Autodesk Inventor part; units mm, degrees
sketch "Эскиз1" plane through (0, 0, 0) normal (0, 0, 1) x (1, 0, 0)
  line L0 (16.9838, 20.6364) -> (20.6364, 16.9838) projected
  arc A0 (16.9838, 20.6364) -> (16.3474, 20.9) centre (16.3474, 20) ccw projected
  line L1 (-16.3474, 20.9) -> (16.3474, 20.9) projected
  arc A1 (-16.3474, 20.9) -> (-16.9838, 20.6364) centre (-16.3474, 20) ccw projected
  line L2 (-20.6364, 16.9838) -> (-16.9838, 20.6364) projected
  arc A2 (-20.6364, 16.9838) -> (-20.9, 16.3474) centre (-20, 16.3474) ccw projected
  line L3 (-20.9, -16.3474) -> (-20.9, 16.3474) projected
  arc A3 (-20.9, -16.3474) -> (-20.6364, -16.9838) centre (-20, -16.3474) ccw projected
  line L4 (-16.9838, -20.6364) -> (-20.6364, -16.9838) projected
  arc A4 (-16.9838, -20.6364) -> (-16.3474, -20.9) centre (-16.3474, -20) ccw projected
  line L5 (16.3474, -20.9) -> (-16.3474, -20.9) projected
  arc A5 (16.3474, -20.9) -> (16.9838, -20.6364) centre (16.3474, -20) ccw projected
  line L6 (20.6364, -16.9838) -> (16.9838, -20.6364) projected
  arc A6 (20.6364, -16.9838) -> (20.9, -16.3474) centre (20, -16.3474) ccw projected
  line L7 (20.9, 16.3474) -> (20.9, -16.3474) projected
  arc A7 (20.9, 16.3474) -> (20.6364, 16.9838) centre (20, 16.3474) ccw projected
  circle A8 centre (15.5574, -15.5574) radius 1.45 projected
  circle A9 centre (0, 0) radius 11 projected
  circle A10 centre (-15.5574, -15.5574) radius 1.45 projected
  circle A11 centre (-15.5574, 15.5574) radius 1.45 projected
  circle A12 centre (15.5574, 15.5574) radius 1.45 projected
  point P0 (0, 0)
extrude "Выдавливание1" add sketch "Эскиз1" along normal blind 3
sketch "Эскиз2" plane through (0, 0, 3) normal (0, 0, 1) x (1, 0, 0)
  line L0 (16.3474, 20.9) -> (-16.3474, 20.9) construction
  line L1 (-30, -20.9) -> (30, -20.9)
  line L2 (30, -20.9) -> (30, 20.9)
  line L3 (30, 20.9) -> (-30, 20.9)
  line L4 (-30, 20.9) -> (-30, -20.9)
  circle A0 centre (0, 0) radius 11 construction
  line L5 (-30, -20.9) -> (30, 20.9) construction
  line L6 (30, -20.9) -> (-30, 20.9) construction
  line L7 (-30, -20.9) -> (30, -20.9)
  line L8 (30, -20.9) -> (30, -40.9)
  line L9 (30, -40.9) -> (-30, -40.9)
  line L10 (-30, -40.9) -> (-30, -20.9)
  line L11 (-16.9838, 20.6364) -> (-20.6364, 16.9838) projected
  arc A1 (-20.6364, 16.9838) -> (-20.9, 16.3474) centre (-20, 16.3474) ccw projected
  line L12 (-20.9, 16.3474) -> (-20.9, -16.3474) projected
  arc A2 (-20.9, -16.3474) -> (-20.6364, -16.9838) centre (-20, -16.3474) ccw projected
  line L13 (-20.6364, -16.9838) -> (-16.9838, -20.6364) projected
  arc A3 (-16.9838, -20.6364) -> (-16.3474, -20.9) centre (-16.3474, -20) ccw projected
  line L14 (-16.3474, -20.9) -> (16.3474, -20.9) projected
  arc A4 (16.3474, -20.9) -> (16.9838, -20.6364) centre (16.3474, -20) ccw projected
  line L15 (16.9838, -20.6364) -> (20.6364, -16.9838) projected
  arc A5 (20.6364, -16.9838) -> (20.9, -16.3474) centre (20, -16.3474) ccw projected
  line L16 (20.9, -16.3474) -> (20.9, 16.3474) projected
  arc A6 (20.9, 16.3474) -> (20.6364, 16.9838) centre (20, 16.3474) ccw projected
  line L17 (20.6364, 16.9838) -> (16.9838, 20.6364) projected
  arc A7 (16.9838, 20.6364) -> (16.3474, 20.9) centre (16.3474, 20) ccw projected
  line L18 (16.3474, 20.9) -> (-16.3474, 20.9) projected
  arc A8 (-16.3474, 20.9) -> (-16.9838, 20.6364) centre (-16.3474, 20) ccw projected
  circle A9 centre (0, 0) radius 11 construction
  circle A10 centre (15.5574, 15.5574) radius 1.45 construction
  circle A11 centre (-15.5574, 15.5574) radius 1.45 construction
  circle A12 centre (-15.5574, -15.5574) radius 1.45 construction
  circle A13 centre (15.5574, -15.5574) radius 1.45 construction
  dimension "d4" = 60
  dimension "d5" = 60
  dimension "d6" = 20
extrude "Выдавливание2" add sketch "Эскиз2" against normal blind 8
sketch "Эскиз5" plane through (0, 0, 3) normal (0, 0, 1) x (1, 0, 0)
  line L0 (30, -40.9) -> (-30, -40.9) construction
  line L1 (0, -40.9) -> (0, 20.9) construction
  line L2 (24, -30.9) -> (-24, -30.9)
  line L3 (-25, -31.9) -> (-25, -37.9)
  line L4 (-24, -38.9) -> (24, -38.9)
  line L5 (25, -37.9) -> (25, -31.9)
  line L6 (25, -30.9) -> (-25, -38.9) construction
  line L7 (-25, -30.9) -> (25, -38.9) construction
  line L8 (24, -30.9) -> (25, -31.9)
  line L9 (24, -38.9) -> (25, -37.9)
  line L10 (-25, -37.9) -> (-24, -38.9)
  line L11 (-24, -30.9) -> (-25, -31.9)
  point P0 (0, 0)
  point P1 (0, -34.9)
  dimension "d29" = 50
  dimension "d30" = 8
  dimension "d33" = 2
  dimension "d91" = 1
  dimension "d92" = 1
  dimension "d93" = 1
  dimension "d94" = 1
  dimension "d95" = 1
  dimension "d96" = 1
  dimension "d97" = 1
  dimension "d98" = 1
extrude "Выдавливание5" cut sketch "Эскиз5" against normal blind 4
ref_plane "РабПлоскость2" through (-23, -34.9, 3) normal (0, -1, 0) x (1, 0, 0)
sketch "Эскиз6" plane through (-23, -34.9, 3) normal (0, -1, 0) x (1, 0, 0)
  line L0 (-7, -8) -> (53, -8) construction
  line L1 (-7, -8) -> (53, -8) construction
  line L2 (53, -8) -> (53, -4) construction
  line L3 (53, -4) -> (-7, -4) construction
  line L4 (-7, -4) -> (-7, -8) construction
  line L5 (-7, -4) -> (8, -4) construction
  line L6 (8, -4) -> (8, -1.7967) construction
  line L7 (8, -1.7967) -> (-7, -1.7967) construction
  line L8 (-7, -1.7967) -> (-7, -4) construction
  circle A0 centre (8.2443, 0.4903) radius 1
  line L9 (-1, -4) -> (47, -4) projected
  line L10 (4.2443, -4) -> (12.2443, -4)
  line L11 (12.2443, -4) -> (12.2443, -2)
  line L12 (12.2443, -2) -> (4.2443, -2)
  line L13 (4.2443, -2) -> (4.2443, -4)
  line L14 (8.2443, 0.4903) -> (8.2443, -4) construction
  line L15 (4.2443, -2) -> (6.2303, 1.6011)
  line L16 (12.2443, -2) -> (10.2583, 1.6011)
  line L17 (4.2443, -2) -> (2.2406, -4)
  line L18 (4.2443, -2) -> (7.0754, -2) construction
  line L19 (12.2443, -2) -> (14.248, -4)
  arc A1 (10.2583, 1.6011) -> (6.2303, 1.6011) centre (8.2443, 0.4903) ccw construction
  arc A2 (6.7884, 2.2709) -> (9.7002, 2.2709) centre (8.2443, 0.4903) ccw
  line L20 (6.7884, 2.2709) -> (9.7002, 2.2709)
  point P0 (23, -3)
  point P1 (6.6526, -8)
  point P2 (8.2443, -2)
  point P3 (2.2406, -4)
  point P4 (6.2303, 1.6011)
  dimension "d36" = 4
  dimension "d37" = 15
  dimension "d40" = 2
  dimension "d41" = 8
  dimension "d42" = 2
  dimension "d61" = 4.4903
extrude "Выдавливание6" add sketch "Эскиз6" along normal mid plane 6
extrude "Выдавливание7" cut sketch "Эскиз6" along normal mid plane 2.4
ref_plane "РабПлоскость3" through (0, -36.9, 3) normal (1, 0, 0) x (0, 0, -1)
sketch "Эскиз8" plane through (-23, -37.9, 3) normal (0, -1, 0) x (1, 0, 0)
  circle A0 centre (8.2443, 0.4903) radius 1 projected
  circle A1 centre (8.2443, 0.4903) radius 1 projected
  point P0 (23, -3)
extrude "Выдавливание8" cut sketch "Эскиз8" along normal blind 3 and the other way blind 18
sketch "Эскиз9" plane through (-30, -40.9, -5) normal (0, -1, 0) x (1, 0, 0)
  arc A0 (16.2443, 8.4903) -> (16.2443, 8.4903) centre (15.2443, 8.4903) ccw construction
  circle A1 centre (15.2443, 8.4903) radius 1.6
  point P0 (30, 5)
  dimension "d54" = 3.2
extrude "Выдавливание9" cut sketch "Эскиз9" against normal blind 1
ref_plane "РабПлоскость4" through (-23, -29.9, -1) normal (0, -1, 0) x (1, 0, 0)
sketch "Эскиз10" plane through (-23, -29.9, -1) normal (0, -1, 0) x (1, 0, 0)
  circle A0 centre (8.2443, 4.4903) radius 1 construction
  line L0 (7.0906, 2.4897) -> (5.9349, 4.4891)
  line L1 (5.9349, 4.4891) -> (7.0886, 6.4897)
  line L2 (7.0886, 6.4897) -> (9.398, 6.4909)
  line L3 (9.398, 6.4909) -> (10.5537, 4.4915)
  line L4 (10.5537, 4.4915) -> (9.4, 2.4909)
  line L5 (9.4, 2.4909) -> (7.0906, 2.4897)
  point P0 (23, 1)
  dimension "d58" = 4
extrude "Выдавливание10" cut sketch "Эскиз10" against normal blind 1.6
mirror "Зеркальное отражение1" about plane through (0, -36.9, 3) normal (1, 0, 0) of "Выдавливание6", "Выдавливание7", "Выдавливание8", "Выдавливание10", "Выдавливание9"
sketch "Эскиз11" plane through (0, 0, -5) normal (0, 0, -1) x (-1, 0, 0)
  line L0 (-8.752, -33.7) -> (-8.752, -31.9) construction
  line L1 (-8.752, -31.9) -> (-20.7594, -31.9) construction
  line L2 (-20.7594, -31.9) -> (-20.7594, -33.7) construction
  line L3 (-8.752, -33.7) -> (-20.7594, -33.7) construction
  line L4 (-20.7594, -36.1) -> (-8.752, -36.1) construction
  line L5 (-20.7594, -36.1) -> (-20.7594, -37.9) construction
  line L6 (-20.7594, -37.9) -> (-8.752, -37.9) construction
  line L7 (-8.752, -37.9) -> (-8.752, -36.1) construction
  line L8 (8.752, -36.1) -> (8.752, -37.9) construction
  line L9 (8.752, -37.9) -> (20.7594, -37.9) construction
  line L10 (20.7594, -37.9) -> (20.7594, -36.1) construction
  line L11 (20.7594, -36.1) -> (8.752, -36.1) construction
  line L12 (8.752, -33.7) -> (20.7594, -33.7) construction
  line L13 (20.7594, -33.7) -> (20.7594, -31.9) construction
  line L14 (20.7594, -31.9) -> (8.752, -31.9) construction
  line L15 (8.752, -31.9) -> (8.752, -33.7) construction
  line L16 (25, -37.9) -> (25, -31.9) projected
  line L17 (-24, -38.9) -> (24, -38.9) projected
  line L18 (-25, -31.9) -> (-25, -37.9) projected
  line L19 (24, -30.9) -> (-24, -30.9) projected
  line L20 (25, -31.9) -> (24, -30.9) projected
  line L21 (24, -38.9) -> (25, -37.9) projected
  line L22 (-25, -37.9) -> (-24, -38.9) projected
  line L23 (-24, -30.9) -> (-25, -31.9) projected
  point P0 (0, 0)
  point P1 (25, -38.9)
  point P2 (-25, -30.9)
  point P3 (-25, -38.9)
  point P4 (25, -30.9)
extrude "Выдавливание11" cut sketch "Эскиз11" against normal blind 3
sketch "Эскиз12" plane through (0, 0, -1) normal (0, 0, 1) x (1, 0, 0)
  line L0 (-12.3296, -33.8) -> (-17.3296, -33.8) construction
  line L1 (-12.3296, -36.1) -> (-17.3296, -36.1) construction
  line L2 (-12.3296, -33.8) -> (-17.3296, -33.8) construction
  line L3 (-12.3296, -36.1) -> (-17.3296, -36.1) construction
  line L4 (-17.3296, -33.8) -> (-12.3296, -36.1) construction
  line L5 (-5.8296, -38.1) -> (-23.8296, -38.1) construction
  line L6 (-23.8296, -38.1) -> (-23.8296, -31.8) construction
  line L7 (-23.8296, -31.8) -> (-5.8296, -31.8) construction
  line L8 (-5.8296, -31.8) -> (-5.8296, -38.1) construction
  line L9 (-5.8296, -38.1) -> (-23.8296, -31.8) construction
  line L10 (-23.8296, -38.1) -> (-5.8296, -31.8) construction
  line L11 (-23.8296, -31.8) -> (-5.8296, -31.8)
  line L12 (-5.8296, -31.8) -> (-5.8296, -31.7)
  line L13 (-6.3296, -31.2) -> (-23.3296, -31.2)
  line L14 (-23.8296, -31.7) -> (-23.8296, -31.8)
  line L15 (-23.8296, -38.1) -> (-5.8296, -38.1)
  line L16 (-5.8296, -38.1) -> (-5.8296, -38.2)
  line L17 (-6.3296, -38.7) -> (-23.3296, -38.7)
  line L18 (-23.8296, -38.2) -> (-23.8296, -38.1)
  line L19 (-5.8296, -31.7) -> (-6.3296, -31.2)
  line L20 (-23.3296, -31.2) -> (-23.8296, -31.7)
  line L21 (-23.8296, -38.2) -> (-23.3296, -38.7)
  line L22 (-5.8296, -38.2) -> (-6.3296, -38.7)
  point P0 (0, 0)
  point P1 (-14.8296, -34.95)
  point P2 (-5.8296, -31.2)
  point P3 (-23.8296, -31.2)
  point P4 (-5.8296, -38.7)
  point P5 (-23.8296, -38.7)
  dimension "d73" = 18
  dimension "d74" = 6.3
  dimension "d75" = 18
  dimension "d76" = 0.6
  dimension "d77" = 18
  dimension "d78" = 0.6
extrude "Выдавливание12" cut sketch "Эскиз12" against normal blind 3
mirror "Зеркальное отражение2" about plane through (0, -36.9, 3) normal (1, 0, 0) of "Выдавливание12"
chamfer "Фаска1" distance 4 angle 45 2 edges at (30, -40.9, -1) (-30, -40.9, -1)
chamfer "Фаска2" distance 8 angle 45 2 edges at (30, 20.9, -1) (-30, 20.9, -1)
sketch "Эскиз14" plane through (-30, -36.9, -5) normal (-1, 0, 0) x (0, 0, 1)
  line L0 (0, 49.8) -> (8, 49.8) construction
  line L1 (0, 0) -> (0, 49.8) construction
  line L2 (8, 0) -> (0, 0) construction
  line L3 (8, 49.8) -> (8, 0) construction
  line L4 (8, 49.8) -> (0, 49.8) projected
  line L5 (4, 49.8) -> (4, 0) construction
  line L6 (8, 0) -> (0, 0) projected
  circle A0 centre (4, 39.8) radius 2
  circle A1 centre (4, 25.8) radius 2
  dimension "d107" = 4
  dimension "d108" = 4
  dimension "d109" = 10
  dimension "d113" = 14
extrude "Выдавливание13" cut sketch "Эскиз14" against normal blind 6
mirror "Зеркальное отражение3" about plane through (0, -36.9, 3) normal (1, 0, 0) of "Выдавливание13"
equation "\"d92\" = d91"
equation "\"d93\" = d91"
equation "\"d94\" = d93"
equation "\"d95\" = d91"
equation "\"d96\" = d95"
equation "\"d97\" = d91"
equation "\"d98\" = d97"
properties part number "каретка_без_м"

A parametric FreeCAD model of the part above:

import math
import FreeCAD as App
import Part
import Sketcher

V = App.Vector
Q = App.Units.Quantity


def edges_at(feature, points):
    """Names of the edges that pass closest to the given points."""
    edges = feature.Shape.Edges
    near = lambda p: min(range(len(edges)), key=lambda i: edges[i].distToShape(Part.Vertex(*p))[0])
    return sorted({f"Edge{near(p) + 1}" for p in points})

doc = App.newDocument("Part")
body = doc.addObject("PartDesign::Body", "Body")

sketch1 = body.newObject("Sketcher::SketchObject", "Sketch")
sketch1.AttachmentSupport = (doc.getObject("XY_Plane"), [""])
sketch1.MapMode = "FlatFace"
sketch1.addGeometry([
    Part.LineSegment(V(20.6364, 16.9838, 0), V(16.9838, 20.6364, 0)),
    Part.ArcOfCircle(Part.Circle(V(16.3474, 20, 0), V(0, 0, 1), 0.900006), math.radians(45), math.radians(90)),
    Part.LineSegment(V(16.3474, 20.9, 0), V(-16.3474, 20.9, 0)),
    Part.ArcOfCircle(Part.Circle(V(-16.3474, 20, 0), V(0, 0, 1), 0.9), math.radians(90), math.radians(135)),
    Part.LineSegment(V(-16.9838, 20.6364, 0), V(-20.6364, 16.9838, 0)),
    Part.ArcOfCircle(Part.Circle(V(-20, 16.3474, 0), V(0, 0, 1), 0.900006), math.radians(135), math.radians(180)),
    Part.LineSegment(V(-20.9, 16.3474, 0), V(-20.9, -16.3474, 0)),
    Part.ArcOfCircle(Part.Circle(V(-20, -16.3474, 0), V(0, 0, 1), 0.9), math.radians(180), math.radians(225)),
    Part.LineSegment(V(-20.6364, -16.9838, 0), V(-16.9838, -20.6364, 0)),
    Part.ArcOfCircle(Part.Circle(V(-16.3474, -20, 0), V(0, 0, 1), 0.900006), math.radians(-135), math.radians(-90)),
    Part.LineSegment(V(-16.3474, -20.9, 0), V(16.3474, -20.9, 0)),
    Part.ArcOfCircle(Part.Circle(V(16.3474, -20, 0), V(0, 0, 1), 0.9), math.radians(-90), math.radians(-45)),
    Part.LineSegment(V(16.9838, -20.6364, 0), V(20.6364, -16.9838, 0)),
    Part.ArcOfCircle(Part.Circle(V(20, -16.3474, 0), V(0, 0, 1), 0.900006), math.radians(-45), math.radians(0)),
    Part.LineSegment(V(20.9, -16.3474, 0), V(20.9, 16.3474, 0)),
    Part.ArcOfCircle(Part.Circle(V(20, 16.3474, 0), V(0, 0, 1), 0.9), math.radians(0), math.radians(45)),
    Part.Circle(V(-15.5574, -15.5574, 0), V(0, 0, 1), 1.45),
    Part.Circle(V(15.5574, -15.5574, 0), V(0, 0, 1), 1.45),
    Part.Circle(V(0, 0, 0), V(0, 0, 1), 11),
    Part.Circle(V(-15.5574, 15.5574, 0), V(0, 0, 1), 1.45),
    Part.Circle(V(15.5574, 15.5574, 0), V(0, 0, 1), 1.45),
], False)
sketch1.addConstraint([
    Sketcher.Constraint("Tangent", 0, 2, 1, 1),
    Sketcher.Constraint("Tangent", 1, 2, 2, 1),
    Sketcher.Constraint("Tangent", 2, 2, 3, 1),
    Sketcher.Constraint("Tangent", 3, 2, 4, 1),
    Sketcher.Constraint("Tangent", 4, 2, 5, 1),
    Sketcher.Constraint("Tangent", 5, 2, 6, 1),
    Sketcher.Constraint("Tangent", 6, 2, 7, 1),
    Sketcher.Constraint("Tangent", 7, 2, 8, 1),
    Sketcher.Constraint("Tangent", 8, 2, 9, 1),
    Sketcher.Constraint("Tangent", 9, 2, 10, 1),
    Sketcher.Constraint("Tangent", 10, 2, 11, 1),
    Sketcher.Constraint("Tangent", 11, 2, 12, 1),
    Sketcher.Constraint("Tangent", 12, 2, 13, 1),
    Sketcher.Constraint("Tangent", 13, 2, 14, 1),
    Sketcher.Constraint("Tangent", 14, 2, 15, 1),
    Sketcher.Constraint("Tangent", 15, 2, 0, 1),
    Sketcher.Constraint("Horizontal", 2),
    Sketcher.Constraint("Vertical", 6),
    Sketcher.Constraint("Horizontal", 10),
    Sketcher.Constraint("Vertical", 14),
    Sketcher.Constraint("Coincident", 18, 3, -1, 1),
    Sketcher.Constraint("Equal", 1, 3),
    Sketcher.Constraint("Equal", 3, 5),
    Sketcher.Constraint("Equal", 5, 7),
    Sketcher.Constraint("Equal", 7, 9),
    Sketcher.Constraint("Equal", 9, 11),
    Sketcher.Constraint("Equal", 11, 13),
    Sketcher.Constraint("Equal", 13, 15),
    Sketcher.Constraint("Equal", 16, 17),
    Sketcher.Constraint("Equal", 17, 19),
    Sketcher.Constraint("Equal", 19, 20),
    Sketcher.Constraint("Symmetric", 1, 3, 9, 3, -1, 1),
    Sketcher.Constraint("Symmetric", 5, 3, 13, 3, -1, 1),
    Sketcher.Constraint("Symmetric", 17, 3, 19, 3, -1, 1),
    Sketcher.Constraint("Symmetric", 16, 3, 20, 3, -1, 1),
    Sketcher.Constraint("Symmetric", 16, 3, 17, 3, -2),
    Sketcher.Constraint("Symmetric", 0, 2, 3, 2, -2),
    Sketcher.Constraint("Symmetric", 8, 2, 11, 2, -2),
    Sketcher.Constraint("Perpendicular", 0, 4),
    Sketcher.Constraint("Equal", 10, 6),
    Sketcher.Constraint("Diameter", 18, 22.0),
    Sketcher.Constraint("Diameter", 16, 2.9),
    Sketcher.Constraint("Radius", 1, 0.9),
    Sketcher.Constraint("DistanceY", -1, 1, 1, 3, 20.0),
    Sketcher.Constraint("DistanceY", 7, 3, 16, 3, 0.79),
    Sketcher.Constraint("DistanceX", 9, 3, 16, 3, 0.79),
    Sketcher.Constraint("DistanceX", 2, 2, 2, 1, 32.6948),
])
pad1 = body.newObject("PartDesign::Pad", "Pad")
pad1.Profile = sketch1
pad1.Length = 3

sketch2 = body.newObject("Sketcher::SketchObject", "Sketch001")
sketch2.AttachmentSupport = (doc.getObject("XY_Plane"), [""])
sketch2.MapMode = "FlatFace"
sketch2.AttachmentOffset = App.Placement(V(0, 0, 3), App.Rotation())
sketch2.addGeometry([
    Part.LineSegment(V(-30, 20.9, 0), V(-30, -40.9, 0)),
    Part.LineSegment(V(-30, -40.9, 0), V(30, -40.9, 0)),
    Part.LineSegment(V(30, -40.9, 0), V(30, 20.9, 0)),
    Part.LineSegment(V(30, 20.9, 0), V(-30, 20.9, 0)),
], False)
sketch2.addConstraint([
    Sketcher.Constraint("Coincident", 0, 2, 1, 1),
    Sketcher.Constraint("Coincident", 1, 2, 2, 1),
    Sketcher.Constraint("Coincident", 2, 2, 3, 1),
    Sketcher.Constraint("Coincident", 3, 2, 0, 1),
    Sketcher.Constraint("Vertical", 0),
    Sketcher.Constraint("Horizontal", 1),
    Sketcher.Constraint("Vertical", 2),
    Sketcher.Constraint("Horizontal", 3),
    Sketcher.Constraint("DistanceX", 1, 1, 1, 2, 60.0),
    Sketcher.Constraint("DistanceY", 0, 2, 0, 1, 61.8),
    Sketcher.Constraint("DistanceX", 0, 2, -1, 1, 30.0),
    Sketcher.Constraint("DistanceY", 0, 2, -1, 1, 40.9),
])
pad2 = body.newObject("PartDesign::Pad", "Pad001")
pad2.Profile = sketch2
pad2.Length = 8
pad2.Reversed = True

sketch3 = body.newObject("Sketcher::SketchObject", "Sketch002")
sketch3.AttachmentSupport = (doc.getObject("XY_Plane"), [""])
sketch3.MapMode = "FlatFace"
sketch3.AttachmentOffset = App.Placement(V(0, 0, 3), App.Rotation())
sketch3.addGeometry([
    Part.LineSegment(V(25, -31.9, 0), V(24, -30.9, 0)),
    Part.LineSegment(V(24, -30.9, 0), V(-24, -30.9, 0)),
    Part.LineSegment(V(-24, -30.9, 0), V(-25, -31.9, 0)),
    Part.LineSegment(V(-25, -31.9, 0), V(-25, -37.9, 0)),
    Part.LineSegment(V(-25, -37.9, 0), V(-24, -38.9, 0)),
    Part.LineSegment(V(-24, -38.9, 0), V(24, -38.9, 0)),
    Part.LineSegment(V(24, -38.9, 0), V(25, -37.9, 0)),
    Part.LineSegment(V(25, -37.9, 0), V(25, -31.9, 0)),
], False)
sketch3.addConstraint([
    Sketcher.Constraint("Coincident", 0, 2, 1, 1),
    Sketcher.Constraint("Coincident", 1, 2, 2, 1),
    Sketcher.Constraint("Coincident", 2, 2, 3, 1),
    Sketcher.Constraint("Coincident", 3, 2, 4, 1),
    Sketcher.Constraint("Coincident", 4, 2, 5, 1),
    Sketcher.Constraint("Coincident", 5, 2, 6, 1),
    Sketcher.Constraint("Coincident", 6, 2, 7, 1),
    Sketcher.Constraint("Coincident", 7, 2, 0, 1),
    Sketcher.Constraint("Horizontal", 1),
    Sketcher.Constraint("Vertical", 3),
    Sketcher.Constraint("Horizontal", 5),
    Sketcher.Constraint("Vertical", 7),
    Sketcher.Constraint("Symmetric", 3, 2, 6, 2, -2),
    Sketcher.Constraint("Perpendicular", 0, 2),
    Sketcher.Constraint("Perpendicular", 2, 4),
    Sketcher.Constraint("Perpendicular", 4, 6),
    Sketcher.Constraint("Horizontal", 2, 2, 7, 2),
    Sketcher.Constraint("Vertical", 1, 2, 4, 2),
    Sketcher.Constraint("Vertical", 0, 2, 5, 2),
    Sketcher.Constraint("DistanceX", 2, 2, 1, 2, 1.0),
    Sketcher.Constraint("DistanceY", 4, 2, 1, 2, 8.0),
    Sketcher.Constraint("DistanceX", 3, 2, 6, 2, 50.0),
    Sketcher.Constraint("DistanceY", 0, 2, -1, 1, 30.9),
])
pocket1 = body.newObject("PartDesign::Pocket", "Pocket")
pocket1.Profile = sketch3
pocket1.Length = 4

sketch4 = body.newObject("Sketcher::SketchObject", "Sketch003")
sketch4.AttachmentSupport = (doc.getObject("XZ_Plane"), [""])
sketch4.MapMode = "FlatFace"
sketch4.AttachmentOffset = App.Placement(V(0, 0, 34.9), App.Rotation())
sketch4.addGeometry([
    Part.LineSegment(V(-18.7557, 1, 0), V(-20.7594, -1, 0)),
    Part.LineSegment(V(-20.7594, -1, 0), V(-8.752, -1, 0)),
    Part.LineSegment(V(-8.752, -1, 0), V(-10.7557, 1, 0)),
    Part.LineSegment(V(-10.7557, 1, 0), V(-12.7417, 4.6011, 0)),
    Part.ArcOfCircle(Part.Circle(V(-14.7557, 3.4903, 0), V(0, 0, 1), 2.300039), math.radians(28.878459), math.radians(50.728997)),
    Part.LineSegment(V(-13.2998, 5.2709, 0), V(-16.2116, 5.2709, 0)),
    Part.ArcOfCircle(Part.Circle(V(-14.7557, 3.4903, 0), V(0, 0, 1), 2.300039), math.radians(129.271003), math.radians(151.121541)),
    Part.LineSegment(V(-16.7697, 4.6011, 0), V(-18.7557, 1, 0)),
    Part.Circle(V(-14.7557, 3.4903, 0), V(0, 0, 1), 1),
], False)
sketch4.addConstraint([
    Sketcher.Constraint("Coincident", 0, 2, 1, 1),
    Sketcher.Constraint("Coincident", 1, 2, 2, 1),
    Sketcher.Constraint("Coincident", 2, 2, 3, 1),
    Sketcher.Constraint("Tangent", 3, 2, 4, 1),
    Sketcher.Constraint("Coincident", 4, 2, 5, 1),
    Sketcher.Constraint("Coincident", 5, 2, 6, 1),
    Sketcher.Constraint("Tangent", 6, 2, 7, 1),
    Sketcher.Constraint("Coincident", 7, 2, 0, 1),
    Sketcher.Constraint("Horizontal", 1),
    Sketcher.Constraint("Horizontal", 5),
    Sketcher.Constraint("Coincident", 6, 3, 4, 3),
    Sketcher.Constraint("Coincident", 8, 3, 4, 3),
    Sketcher.Constraint("Equal", 4, 6),
    Sketcher.Constraint("Horizontal", 3, 2, 6, 2),
    Sketcher.Constraint("Horizontal", 2, 2, 7, 2),
    Sketcher.Constraint("Equal", 0, 2),
    Sketcher.Constraint("Diameter", 8, 2.0),
    Sketcher.Constraint("DistanceY", 1, 2, 2, 2, 2.0),
    Sketcher.Constraint("DistanceX", 4, 3, 2, 2, 4.0),
    Sketcher.Constraint("Radius", 4, 2.3),
    Sketcher.Constraint("DistanceY", 0, 2, -1, 1, 1.0),
    Sketcher.Constraint("DistanceY", 0, 2, 4, 3, 4.4903),
    Sketcher.Constraint("DistanceX", 5, 2, 3, 2, 3.47),
    Sketcher.Constraint("Distance", 0, 2.831),
    Sketcher.Constraint("DistanceX", 1, 2, -1, 1, 8.752),
])
pad3 = body.newObject("PartDesign::Pad", "Pad002")
pad3.Profile = sketch4
pad3.Length = 6
pad3.Midplane = True

sketch5 = body.newObject("Sketcher::SketchObject", "Sketch004")
sketch5.AttachmentSupport = (doc.getObject("XZ_Plane"), [""])
sketch5.MapMode = "FlatFace"
sketch5.AttachmentOffset = App.Placement(V(0, 0, 34.9), App.Rotation())
sketch5.addGeometry([
    Part.LineSegment(V(-18.7557, 1, 0), V(-20.7594, -1, 0)),
    Part.LineSegment(V(-20.7594, -1, 0), V(-8.752, -1, 0)),
    Part.LineSegment(V(-8.752, -1, 0), V(-10.7557, 1, 0)),
    Part.LineSegment(V(-10.7557, 1, 0), V(-12.7417, 4.6011, 0)),
    Part.ArcOfCircle(Part.Circle(V(-14.7557, 3.4903, 0), V(0, 0, 1), 2.300039), math.radians(28.878459), math.radians(50.728997)),
    Part.LineSegment(V(-13.2998, 5.2709, 0), V(-16.2116, 5.2709, 0)),
    Part.ArcOfCircle(Part.Circle(V(-14.7557, 3.4903, 0), V(0, 0, 1), 2.300039), math.radians(129.271003), math.radians(151.121541)),
    Part.LineSegment(V(-16.7697, 4.6011, 0), V(-18.7557, 1, 0)),
    Part.Circle(V(-14.7557, 3.4903, 0), V(0, 0, 1), 1),
], False)
sketch5.addConstraint([
    Sketcher.Constraint("Coincident", 0, 2, 1, 1),
    Sketcher.Constraint("Coincident", 1, 2, 2, 1),
    Sketcher.Constraint("Coincident", 2, 2, 3, 1),
    Sketcher.Constraint("Tangent", 3, 2, 4, 1),
    Sketcher.Constraint("Coincident", 4, 2, 5, 1),
    Sketcher.Constraint("Coincident", 5, 2, 6, 1),
    Sketcher.Constraint("Tangent", 6, 2, 7, 1),
    Sketcher.Constraint("Coincident", 7, 2, 0, 1),
    Sketcher.Constraint("Horizontal", 1),
    Sketcher.Constraint("Horizontal", 5),
    Sketcher.Constraint("Coincident", 6, 3, 4, 3),
    Sketcher.Constraint("Coincident", 8, 3, 4, 3),
    Sketcher.Constraint("Equal", 4, 6),
    Sketcher.Constraint("Horizontal", 3, 2, 6, 2),
    Sketcher.Constraint("Horizontal", 2, 2, 7, 2),
    Sketcher.Constraint("Equal", 0, 2),
    Sketcher.Constraint("Diameter", 8, 2.0),
    Sketcher.Constraint("DistanceY", 1, 2, 2, 2, 2.0),
    Sketcher.Constraint("DistanceX", 4, 3, 2, 2, 4.0),
    Sketcher.Constraint("Radius", 4, 2.3),
    Sketcher.Constraint("DistanceY", 0, 2, -1, 1, 1.0),
    Sketcher.Constraint("DistanceY", 0, 2, 4, 3, 4.4903),
    Sketcher.Constraint("DistanceX", 5, 2, 3, 2, 3.47),
    Sketcher.Constraint("Distance", 0, 2.831),
    Sketcher.Constraint("DistanceX", 1, 2, -1, 1, 8.752),
])
pocket2 = body.newObject("PartDesign::Pocket", "Pocket001")
pocket2.Profile = sketch5
pocket2.Length = 2.4
pocket2.Midplane = True

sketch6 = body.newObject("Sketcher::SketchObject", "Sketch005")
sketch6.AttachmentSupport = (doc.getObject("XZ_Plane"), [""])
sketch6.MapMode = "FlatFace"
sketch6.AttachmentOffset = App.Placement(V(0, 0, 37.9), App.Rotation())
sketch6.addGeometry(Part.Circle(V(-14.7557, 3.4903, 0), V(0, 0, 1), 1), False)
sketch6.addConstraint([
    Sketcher.Constraint("Diameter", 0, 2.0),
    Sketcher.Constraint("DistanceX", 0, 3, -1, 1, 14.7557),
    Sketcher.Constraint("DistanceY", -1, 1, 0, 3, 3.4903),
])
pocket3 = body.newObject("PartDesign::Pocket", "Pocket002")
pocket3.Profile = sketch6
pocket3.Type = "TwoLengths"
pocket3.Length = 3
pocket3.Length2 = 18
pocket3.Reversed = True

sketch7 = body.newObject("Sketcher::SketchObject", "Sketch006")
sketch7.AttachmentSupport = (doc.getObject("XZ_Plane"), [""])
sketch7.MapMode = "FlatFace"
sketch7.AttachmentOffset = App.Placement(V(0, 0, 40.9), App.Rotation())
sketch7.addGeometry(Part.Circle(V(-14.7557, 3.4903, 0), V(0, 0, 1), 1.6), False)
sketch7.addConstraint([
    Sketcher.Constraint("Diameter", 0, 3.2),
    Sketcher.Constraint("DistanceX", 0, 3, -1, 1, 14.7557),
    Sketcher.Constraint("DistanceY", -1, 1, 0, 3, 3.4903),
])
pocket4 = body.newObject("PartDesign::Pocket", "Pocket003")
pocket4.Profile = sketch7
pocket4.Length = 1

sketch8 = body.newObject("Sketcher::SketchObject", "Sketch007")
sketch8.AttachmentSupport = (doc.getObject("XZ_Plane"), [""])
sketch8.MapMode = "FlatFace"
sketch8.AttachmentOffset = App.Placement(V(0, 0, 29.9), App.Rotation())
sketch8.addGeometry([
    Part.LineSegment(V(-17.0651, 3.4891, 0), V(-15.9094, 1.4897, 0)),
    Part.LineSegment(V(-15.9094, 1.4897, 0), V(-13.6, 1.4909, 0)),
    Part.LineSegment(V(-13.6, 1.4909, 0), V(-12.4463, 3.4915, 0)),
    Part.LineSegment(V(-12.4463, 3.4915, 0), V(-13.602, 5.4909, 0)),
    Part.LineSegment(V(-13.602, 5.4909, 0), V(-15.9114, 5.4897, 0)),
    Part.LineSegment(V(-15.9114, 5.4897, 0), V(-17.0651, 3.4891, 0)),
], False)
sketch8.addConstraint([
    Sketcher.Constraint("Coincident", 0, 2, 1, 1),
    Sketcher.Constraint("Coincident", 1, 2, 2, 1),
    Sketcher.Constraint("Coincident", 2, 2, 3, 1),
    Sketcher.Constraint("Coincident", 3, 2, 4, 1),
    Sketcher.Constraint("Coincident", 4, 2, 5, 1),
    Sketcher.Constraint("Coincident", 5, 2, 0, 1),
    Sketcher.Constraint("Parallel", 0, 3),
    Sketcher.Constraint("Parallel", 1, 4),
    Sketcher.Constraint("Parallel", 2, 5),
    Sketcher.Constraint("Equal", 0, 1),
    Sketcher.Constraint("Equal", 1, 2),
    Sketcher.Constraint("Equal", 2, 3),
    Sketcher.Constraint("DistanceY", 1, 2, 3, 2, 4.0),
    Sketcher.Constraint("DistanceX", 1, 2, -1, 1, 13.6),
    Sketcher.Constraint("Angle", 0, Q("-59.971 deg")),
    Sketcher.Constraint("Angle", 1, Q("0.0298 deg")),
    Sketcher.Constraint("Angle", 2, Q("60.029 deg")),
    Sketcher.Constraint("DistanceY", -1, 1, 1, 2, 1.491),
])
pocket5 = body.newObject("PartDesign::Pocket", "Pocket004")
pocket5.Profile = sketch8
pocket5.Length = 1.6
doc.recompute()

mirrored = body.newObject("PartDesign::Mirrored", "Mirrored")
mirrored.Originals = [pad3, pocket2, pocket3, pocket5, pocket4]
mirrored.MirrorPlane = (doc.getObject("YZ_Plane"), [""])
body.Tip = mirrored

sketch9 = body.newObject("Sketcher::SketchObject", "Sketch008")
sketch9.AttachmentSupport = (doc.getObject("XY_Plane"), [""])
sketch9.MapMode = "FlatFace"
sketch9.AttachmentOffset = App.Placement(V(0, 0, -5), App.Rotation())
sketch9.addGeometry([
    Part.LineSegment(V(-24, -38.9, 0), V(-25, -37.9, 0)),
    Part.LineSegment(V(-25, -37.9, 0), V(-25, -31.9, 0)),
    Part.LineSegment(V(-25, -31.9, 0), V(-24, -30.9, 0)),
    Part.LineSegment(V(-24, -30.9, 0), V(24, -30.9, 0)),
    Part.LineSegment(V(24, -30.9, 0), V(25, -31.9, 0)),
    Part.LineSegment(V(25, -31.9, 0), V(25, -37.9, 0)),
    Part.LineSegment(V(25, -37.9, 0), V(24, -38.9, 0)),
    Part.LineSegment(V(24, -38.9, 0), V(-24, -38.9, 0)),
], False)
sketch9.addConstraint([
    Sketcher.Constraint("Coincident", 0, 2, 1, 1),
    Sketcher.Constraint("Coincident", 1, 2, 2, 1),
    Sketcher.Constraint("Coincident", 2, 2, 3, 1),
    Sketcher.Constraint("Coincident", 3, 2, 4, 1),
    Sketcher.Constraint("Coincident", 4, 2, 5, 1),
    Sketcher.Constraint("Coincident", 5, 2, 6, 1),
    Sketcher.Constraint("Coincident", 6, 2, 7, 1),
    Sketcher.Constraint("Coincident", 7, 2, 0, 1),
    Sketcher.Constraint("Vertical", 1),
    Sketcher.Constraint("Horizontal", 3),
    Sketcher.Constraint("Vertical", 5),
    Sketcher.Constraint("Horizontal", 7),
    Sketcher.Constraint("Symmetric", 1, 2, 4, 2, -2),
    Sketcher.Constraint("Perpendicular", 0, 2),
    Sketcher.Constraint("Perpendicular", 2, 4),
    Sketcher.Constraint("Perpendicular", 4, 6),
    Sketcher.Constraint("Horizontal", 0, 2, 5, 2),
    Sketcher.Constraint("Vertical", 3, 2, 6, 2),
    Sketcher.Constraint("Vertical", 2, 2, 7, 2),
    Sketcher.Constraint("DistanceX", 3, 1, 3, 2, 48.0),
    Sketcher.Constraint("DistanceY", 1, 1, 1, 2, 6.0),
    Sketcher.Constraint("DistanceX", 0, 2, -1, 1, 25.0),
    Sketcher.Constraint("DistanceY", 0, 2, -1, 1, 37.9),
])
pocket6 = body.newObject("PartDesign::Pocket", "Pocket005")
pocket6.Profile = sketch9
pocket6.Length = 3
pocket6.Reversed = True

sketch10 = body.newObject("Sketcher::SketchObject", "Sketch009")
sketch10.AttachmentSupport = (doc.getObject("XY_Plane"), [""])
sketch10.MapMode = "FlatFace"
sketch10.AttachmentOffset = App.Placement(V(0, 0, -1), App.Rotation())
sketch10.addGeometry([
    Part.LineSegment(V(-23.8296, -31.7, 0), V(-23.8296, -31.8, 0)),
    Part.LineSegment(V(-23.8296, -31.8, 0), V(-5.8296, -31.8, 0)),
    Part.LineSegment(V(-5.8296, -31.8, 0), V(-5.8296, -31.7, 0)),
    Part.LineSegment(V(-5.8296, -31.7, 0), V(-6.3296, -31.2, 0)),
    Part.LineSegment(V(-6.3296, -31.2, 0), V(-23.3296, -31.2, 0)),
    Part.LineSegment(V(-23.3296, -31.2, 0), V(-23.8296, -31.7, 0)),
    Part.LineSegment(V(-5.8296, -38.1, 0), V(-23.8296, -38.1, 0)),
    Part.LineSegment(V(-23.8296, -38.1, 0), V(-23.8296, -38.2, 0)),
    Part.LineSegment(V(-23.8296, -38.2, 0), V(-23.3296, -38.7, 0)),
    Part.LineSegment(V(-23.3296, -38.7, 0), V(-6.3296, -38.7, 0)),
    Part.LineSegment(V(-6.3296, -38.7, 0), V(-5.8296, -38.2, 0)),
    Part.LineSegment(V(-5.8296, -38.2, 0), V(-5.8296, -38.1, 0)),
], False)
sketch10.addConstraint([
    Sketcher.Constraint("Coincident", 0, 2, 1, 1),
    Sketcher.Constraint("Coincident", 1, 2, 2, 1),
    Sketcher.Constraint("Coincident", 2, 2, 3, 1),
    Sketcher.Constraint("Coincident", 3, 2, 4, 1),
    Sketcher.Constraint("Coincident", 4, 2, 5, 1),
    Sketcher.Constraint("Coincident", 5, 2, 0, 1),
    Sketcher.Constraint("Coincident", 6, 2, 7, 1),
    Sketcher.Constraint("Coincident", 7, 2, 8, 1),
    Sketcher.Constraint("Coincident", 8, 2, 9, 1),
    Sketcher.Constraint("Coincident", 9, 2, 10, 1),
    Sketcher.Constraint("Coincident", 10, 2, 11, 1),
    Sketcher.Constraint("Coincident", 11, 2, 6, 1),
    Sketcher.Constraint("Vertical", 0),
    Sketcher.Constraint("Horizontal", 1),
    Sketcher.Constraint("Vertical", 2),
    Sketcher.Constraint("Horizontal", 4),
    Sketcher.Constraint("Horizontal", 6),
    Sketcher.Constraint("Vertical", 7),
    Sketcher.Constraint("Horizontal", 9),
    Sketcher.Constraint("Vertical", 11),
    Sketcher.Constraint("Perpendicular", 3, 5),
    Sketcher.Constraint("Perpendicular", 5, 8),
    Sketcher.Constraint("Perpendicular", 8, 10),
    Sketcher.Constraint("Horizontal", 2, 2, 5, 2),
    Sketcher.Constraint("Horizontal", 7, 2, 10, 2),
    Sketcher.Constraint("Vertical", 5, 2, 6, 2),
    Sketcher.Constraint("Vertical", 4, 2, 8, 2),
    Sketcher.Constraint("Vertical", 3, 2, 9, 2),
    Sketcher.Constraint("Vertical", 2, 2, 10, 2),
    Sketcher.Constraint("Equal", 2, 7),
    Sketcher.Constraint("DistanceX", 1, 1, 1, 2, 18.0),
    Sketcher.Constraint("DistanceY", 1, 2, 3, 2, 0.6),
    Sketcher.Constraint("DistanceY", 6, 2, 0, 2, 6.3),
    Sketcher.Constraint("DistanceX", 4, 2, 4, 1, 17.0),
    Sketcher.Constraint("DistanceY", 0, 2, -1, 1, 31.8),
    Sketcher.Constraint("DistanceX", 0, 2, -1, 1, 23.8296),
])
pocket7 = body.newObject("PartDesign::Pocket", "Pocket006")
pocket7.Profile = sketch10
pocket7.Length = 3
doc.recompute()

mirrored2 = body.newObject("PartDesign::Mirrored", "Mirrored001")
mirrored2.Originals = [pocket7]
mirrored2.MirrorPlane = (doc.getObject("YZ_Plane"), [""])
body.Tip = mirrored2
doc.recompute()

chamfer = body.newObject("PartDesign::Chamfer", "Chamfer")
chamfer.Base = (mirrored2, edges_at(mirrored2, [(30, -40.9, -1), (-30, -40.9, -1)]))
chamfer.Size = 4
doc.recompute()

chamfer2 = body.newObject("PartDesign::Chamfer", "Chamfer001")
chamfer2.Base = (chamfer, edges_at(chamfer, [(30, 20.9, -1), (-30, 20.9, -1)]))
chamfer2.Size = 8

sketch11 = body.newObject("Sketcher::SketchObject", "Sketch010")
sketch11.AttachmentSupport = (doc.getObject("YZ_Plane"), [""])
sketch11.MapMode = "FlatFace"
sketch11.AttachmentOffset = App.Placement(V(0, 0, -30), App.Rotation())
sketch11.addGeometry([
    Part.Circle(V(2.9, -1, 0), V(0, 0, 1), 2),
    Part.Circle(V(-11.1, -1, 0), V(0, 0, 1), 2),
], False)
sketch11.addConstraint([
    Sketcher.Constraint("Equal", 0, 1),
    Sketcher.Constraint("Horizontal", 0, 3, 1, 3),
    Sketcher.Constraint("Diameter", 0, 4.0),
    Sketcher.Constraint("DistanceX", 1, 3, 0, 3, 14.0),
    Sketcher.Constraint("DistanceY", 0, 3, -1, 1, 1.0),
    Sketcher.Constraint("DistanceX", -1, 1, 0, 3, 2.9),
])
pocket8 = body.newObject("PartDesign::Pocket", "Pocket007")
pocket8.Profile = sketch11
pocket8.Length = 6
pocket8.Reversed = True
doc.recompute()

mirrored3 = body.newObject("PartDesign::Mirrored", "Mirrored002")
mirrored3.Originals = [pocket8]
mirrored3.MirrorPlane = (doc.getObject("YZ_Plane"), [""])
body.Tip = mirrored3

doc.recompute()
